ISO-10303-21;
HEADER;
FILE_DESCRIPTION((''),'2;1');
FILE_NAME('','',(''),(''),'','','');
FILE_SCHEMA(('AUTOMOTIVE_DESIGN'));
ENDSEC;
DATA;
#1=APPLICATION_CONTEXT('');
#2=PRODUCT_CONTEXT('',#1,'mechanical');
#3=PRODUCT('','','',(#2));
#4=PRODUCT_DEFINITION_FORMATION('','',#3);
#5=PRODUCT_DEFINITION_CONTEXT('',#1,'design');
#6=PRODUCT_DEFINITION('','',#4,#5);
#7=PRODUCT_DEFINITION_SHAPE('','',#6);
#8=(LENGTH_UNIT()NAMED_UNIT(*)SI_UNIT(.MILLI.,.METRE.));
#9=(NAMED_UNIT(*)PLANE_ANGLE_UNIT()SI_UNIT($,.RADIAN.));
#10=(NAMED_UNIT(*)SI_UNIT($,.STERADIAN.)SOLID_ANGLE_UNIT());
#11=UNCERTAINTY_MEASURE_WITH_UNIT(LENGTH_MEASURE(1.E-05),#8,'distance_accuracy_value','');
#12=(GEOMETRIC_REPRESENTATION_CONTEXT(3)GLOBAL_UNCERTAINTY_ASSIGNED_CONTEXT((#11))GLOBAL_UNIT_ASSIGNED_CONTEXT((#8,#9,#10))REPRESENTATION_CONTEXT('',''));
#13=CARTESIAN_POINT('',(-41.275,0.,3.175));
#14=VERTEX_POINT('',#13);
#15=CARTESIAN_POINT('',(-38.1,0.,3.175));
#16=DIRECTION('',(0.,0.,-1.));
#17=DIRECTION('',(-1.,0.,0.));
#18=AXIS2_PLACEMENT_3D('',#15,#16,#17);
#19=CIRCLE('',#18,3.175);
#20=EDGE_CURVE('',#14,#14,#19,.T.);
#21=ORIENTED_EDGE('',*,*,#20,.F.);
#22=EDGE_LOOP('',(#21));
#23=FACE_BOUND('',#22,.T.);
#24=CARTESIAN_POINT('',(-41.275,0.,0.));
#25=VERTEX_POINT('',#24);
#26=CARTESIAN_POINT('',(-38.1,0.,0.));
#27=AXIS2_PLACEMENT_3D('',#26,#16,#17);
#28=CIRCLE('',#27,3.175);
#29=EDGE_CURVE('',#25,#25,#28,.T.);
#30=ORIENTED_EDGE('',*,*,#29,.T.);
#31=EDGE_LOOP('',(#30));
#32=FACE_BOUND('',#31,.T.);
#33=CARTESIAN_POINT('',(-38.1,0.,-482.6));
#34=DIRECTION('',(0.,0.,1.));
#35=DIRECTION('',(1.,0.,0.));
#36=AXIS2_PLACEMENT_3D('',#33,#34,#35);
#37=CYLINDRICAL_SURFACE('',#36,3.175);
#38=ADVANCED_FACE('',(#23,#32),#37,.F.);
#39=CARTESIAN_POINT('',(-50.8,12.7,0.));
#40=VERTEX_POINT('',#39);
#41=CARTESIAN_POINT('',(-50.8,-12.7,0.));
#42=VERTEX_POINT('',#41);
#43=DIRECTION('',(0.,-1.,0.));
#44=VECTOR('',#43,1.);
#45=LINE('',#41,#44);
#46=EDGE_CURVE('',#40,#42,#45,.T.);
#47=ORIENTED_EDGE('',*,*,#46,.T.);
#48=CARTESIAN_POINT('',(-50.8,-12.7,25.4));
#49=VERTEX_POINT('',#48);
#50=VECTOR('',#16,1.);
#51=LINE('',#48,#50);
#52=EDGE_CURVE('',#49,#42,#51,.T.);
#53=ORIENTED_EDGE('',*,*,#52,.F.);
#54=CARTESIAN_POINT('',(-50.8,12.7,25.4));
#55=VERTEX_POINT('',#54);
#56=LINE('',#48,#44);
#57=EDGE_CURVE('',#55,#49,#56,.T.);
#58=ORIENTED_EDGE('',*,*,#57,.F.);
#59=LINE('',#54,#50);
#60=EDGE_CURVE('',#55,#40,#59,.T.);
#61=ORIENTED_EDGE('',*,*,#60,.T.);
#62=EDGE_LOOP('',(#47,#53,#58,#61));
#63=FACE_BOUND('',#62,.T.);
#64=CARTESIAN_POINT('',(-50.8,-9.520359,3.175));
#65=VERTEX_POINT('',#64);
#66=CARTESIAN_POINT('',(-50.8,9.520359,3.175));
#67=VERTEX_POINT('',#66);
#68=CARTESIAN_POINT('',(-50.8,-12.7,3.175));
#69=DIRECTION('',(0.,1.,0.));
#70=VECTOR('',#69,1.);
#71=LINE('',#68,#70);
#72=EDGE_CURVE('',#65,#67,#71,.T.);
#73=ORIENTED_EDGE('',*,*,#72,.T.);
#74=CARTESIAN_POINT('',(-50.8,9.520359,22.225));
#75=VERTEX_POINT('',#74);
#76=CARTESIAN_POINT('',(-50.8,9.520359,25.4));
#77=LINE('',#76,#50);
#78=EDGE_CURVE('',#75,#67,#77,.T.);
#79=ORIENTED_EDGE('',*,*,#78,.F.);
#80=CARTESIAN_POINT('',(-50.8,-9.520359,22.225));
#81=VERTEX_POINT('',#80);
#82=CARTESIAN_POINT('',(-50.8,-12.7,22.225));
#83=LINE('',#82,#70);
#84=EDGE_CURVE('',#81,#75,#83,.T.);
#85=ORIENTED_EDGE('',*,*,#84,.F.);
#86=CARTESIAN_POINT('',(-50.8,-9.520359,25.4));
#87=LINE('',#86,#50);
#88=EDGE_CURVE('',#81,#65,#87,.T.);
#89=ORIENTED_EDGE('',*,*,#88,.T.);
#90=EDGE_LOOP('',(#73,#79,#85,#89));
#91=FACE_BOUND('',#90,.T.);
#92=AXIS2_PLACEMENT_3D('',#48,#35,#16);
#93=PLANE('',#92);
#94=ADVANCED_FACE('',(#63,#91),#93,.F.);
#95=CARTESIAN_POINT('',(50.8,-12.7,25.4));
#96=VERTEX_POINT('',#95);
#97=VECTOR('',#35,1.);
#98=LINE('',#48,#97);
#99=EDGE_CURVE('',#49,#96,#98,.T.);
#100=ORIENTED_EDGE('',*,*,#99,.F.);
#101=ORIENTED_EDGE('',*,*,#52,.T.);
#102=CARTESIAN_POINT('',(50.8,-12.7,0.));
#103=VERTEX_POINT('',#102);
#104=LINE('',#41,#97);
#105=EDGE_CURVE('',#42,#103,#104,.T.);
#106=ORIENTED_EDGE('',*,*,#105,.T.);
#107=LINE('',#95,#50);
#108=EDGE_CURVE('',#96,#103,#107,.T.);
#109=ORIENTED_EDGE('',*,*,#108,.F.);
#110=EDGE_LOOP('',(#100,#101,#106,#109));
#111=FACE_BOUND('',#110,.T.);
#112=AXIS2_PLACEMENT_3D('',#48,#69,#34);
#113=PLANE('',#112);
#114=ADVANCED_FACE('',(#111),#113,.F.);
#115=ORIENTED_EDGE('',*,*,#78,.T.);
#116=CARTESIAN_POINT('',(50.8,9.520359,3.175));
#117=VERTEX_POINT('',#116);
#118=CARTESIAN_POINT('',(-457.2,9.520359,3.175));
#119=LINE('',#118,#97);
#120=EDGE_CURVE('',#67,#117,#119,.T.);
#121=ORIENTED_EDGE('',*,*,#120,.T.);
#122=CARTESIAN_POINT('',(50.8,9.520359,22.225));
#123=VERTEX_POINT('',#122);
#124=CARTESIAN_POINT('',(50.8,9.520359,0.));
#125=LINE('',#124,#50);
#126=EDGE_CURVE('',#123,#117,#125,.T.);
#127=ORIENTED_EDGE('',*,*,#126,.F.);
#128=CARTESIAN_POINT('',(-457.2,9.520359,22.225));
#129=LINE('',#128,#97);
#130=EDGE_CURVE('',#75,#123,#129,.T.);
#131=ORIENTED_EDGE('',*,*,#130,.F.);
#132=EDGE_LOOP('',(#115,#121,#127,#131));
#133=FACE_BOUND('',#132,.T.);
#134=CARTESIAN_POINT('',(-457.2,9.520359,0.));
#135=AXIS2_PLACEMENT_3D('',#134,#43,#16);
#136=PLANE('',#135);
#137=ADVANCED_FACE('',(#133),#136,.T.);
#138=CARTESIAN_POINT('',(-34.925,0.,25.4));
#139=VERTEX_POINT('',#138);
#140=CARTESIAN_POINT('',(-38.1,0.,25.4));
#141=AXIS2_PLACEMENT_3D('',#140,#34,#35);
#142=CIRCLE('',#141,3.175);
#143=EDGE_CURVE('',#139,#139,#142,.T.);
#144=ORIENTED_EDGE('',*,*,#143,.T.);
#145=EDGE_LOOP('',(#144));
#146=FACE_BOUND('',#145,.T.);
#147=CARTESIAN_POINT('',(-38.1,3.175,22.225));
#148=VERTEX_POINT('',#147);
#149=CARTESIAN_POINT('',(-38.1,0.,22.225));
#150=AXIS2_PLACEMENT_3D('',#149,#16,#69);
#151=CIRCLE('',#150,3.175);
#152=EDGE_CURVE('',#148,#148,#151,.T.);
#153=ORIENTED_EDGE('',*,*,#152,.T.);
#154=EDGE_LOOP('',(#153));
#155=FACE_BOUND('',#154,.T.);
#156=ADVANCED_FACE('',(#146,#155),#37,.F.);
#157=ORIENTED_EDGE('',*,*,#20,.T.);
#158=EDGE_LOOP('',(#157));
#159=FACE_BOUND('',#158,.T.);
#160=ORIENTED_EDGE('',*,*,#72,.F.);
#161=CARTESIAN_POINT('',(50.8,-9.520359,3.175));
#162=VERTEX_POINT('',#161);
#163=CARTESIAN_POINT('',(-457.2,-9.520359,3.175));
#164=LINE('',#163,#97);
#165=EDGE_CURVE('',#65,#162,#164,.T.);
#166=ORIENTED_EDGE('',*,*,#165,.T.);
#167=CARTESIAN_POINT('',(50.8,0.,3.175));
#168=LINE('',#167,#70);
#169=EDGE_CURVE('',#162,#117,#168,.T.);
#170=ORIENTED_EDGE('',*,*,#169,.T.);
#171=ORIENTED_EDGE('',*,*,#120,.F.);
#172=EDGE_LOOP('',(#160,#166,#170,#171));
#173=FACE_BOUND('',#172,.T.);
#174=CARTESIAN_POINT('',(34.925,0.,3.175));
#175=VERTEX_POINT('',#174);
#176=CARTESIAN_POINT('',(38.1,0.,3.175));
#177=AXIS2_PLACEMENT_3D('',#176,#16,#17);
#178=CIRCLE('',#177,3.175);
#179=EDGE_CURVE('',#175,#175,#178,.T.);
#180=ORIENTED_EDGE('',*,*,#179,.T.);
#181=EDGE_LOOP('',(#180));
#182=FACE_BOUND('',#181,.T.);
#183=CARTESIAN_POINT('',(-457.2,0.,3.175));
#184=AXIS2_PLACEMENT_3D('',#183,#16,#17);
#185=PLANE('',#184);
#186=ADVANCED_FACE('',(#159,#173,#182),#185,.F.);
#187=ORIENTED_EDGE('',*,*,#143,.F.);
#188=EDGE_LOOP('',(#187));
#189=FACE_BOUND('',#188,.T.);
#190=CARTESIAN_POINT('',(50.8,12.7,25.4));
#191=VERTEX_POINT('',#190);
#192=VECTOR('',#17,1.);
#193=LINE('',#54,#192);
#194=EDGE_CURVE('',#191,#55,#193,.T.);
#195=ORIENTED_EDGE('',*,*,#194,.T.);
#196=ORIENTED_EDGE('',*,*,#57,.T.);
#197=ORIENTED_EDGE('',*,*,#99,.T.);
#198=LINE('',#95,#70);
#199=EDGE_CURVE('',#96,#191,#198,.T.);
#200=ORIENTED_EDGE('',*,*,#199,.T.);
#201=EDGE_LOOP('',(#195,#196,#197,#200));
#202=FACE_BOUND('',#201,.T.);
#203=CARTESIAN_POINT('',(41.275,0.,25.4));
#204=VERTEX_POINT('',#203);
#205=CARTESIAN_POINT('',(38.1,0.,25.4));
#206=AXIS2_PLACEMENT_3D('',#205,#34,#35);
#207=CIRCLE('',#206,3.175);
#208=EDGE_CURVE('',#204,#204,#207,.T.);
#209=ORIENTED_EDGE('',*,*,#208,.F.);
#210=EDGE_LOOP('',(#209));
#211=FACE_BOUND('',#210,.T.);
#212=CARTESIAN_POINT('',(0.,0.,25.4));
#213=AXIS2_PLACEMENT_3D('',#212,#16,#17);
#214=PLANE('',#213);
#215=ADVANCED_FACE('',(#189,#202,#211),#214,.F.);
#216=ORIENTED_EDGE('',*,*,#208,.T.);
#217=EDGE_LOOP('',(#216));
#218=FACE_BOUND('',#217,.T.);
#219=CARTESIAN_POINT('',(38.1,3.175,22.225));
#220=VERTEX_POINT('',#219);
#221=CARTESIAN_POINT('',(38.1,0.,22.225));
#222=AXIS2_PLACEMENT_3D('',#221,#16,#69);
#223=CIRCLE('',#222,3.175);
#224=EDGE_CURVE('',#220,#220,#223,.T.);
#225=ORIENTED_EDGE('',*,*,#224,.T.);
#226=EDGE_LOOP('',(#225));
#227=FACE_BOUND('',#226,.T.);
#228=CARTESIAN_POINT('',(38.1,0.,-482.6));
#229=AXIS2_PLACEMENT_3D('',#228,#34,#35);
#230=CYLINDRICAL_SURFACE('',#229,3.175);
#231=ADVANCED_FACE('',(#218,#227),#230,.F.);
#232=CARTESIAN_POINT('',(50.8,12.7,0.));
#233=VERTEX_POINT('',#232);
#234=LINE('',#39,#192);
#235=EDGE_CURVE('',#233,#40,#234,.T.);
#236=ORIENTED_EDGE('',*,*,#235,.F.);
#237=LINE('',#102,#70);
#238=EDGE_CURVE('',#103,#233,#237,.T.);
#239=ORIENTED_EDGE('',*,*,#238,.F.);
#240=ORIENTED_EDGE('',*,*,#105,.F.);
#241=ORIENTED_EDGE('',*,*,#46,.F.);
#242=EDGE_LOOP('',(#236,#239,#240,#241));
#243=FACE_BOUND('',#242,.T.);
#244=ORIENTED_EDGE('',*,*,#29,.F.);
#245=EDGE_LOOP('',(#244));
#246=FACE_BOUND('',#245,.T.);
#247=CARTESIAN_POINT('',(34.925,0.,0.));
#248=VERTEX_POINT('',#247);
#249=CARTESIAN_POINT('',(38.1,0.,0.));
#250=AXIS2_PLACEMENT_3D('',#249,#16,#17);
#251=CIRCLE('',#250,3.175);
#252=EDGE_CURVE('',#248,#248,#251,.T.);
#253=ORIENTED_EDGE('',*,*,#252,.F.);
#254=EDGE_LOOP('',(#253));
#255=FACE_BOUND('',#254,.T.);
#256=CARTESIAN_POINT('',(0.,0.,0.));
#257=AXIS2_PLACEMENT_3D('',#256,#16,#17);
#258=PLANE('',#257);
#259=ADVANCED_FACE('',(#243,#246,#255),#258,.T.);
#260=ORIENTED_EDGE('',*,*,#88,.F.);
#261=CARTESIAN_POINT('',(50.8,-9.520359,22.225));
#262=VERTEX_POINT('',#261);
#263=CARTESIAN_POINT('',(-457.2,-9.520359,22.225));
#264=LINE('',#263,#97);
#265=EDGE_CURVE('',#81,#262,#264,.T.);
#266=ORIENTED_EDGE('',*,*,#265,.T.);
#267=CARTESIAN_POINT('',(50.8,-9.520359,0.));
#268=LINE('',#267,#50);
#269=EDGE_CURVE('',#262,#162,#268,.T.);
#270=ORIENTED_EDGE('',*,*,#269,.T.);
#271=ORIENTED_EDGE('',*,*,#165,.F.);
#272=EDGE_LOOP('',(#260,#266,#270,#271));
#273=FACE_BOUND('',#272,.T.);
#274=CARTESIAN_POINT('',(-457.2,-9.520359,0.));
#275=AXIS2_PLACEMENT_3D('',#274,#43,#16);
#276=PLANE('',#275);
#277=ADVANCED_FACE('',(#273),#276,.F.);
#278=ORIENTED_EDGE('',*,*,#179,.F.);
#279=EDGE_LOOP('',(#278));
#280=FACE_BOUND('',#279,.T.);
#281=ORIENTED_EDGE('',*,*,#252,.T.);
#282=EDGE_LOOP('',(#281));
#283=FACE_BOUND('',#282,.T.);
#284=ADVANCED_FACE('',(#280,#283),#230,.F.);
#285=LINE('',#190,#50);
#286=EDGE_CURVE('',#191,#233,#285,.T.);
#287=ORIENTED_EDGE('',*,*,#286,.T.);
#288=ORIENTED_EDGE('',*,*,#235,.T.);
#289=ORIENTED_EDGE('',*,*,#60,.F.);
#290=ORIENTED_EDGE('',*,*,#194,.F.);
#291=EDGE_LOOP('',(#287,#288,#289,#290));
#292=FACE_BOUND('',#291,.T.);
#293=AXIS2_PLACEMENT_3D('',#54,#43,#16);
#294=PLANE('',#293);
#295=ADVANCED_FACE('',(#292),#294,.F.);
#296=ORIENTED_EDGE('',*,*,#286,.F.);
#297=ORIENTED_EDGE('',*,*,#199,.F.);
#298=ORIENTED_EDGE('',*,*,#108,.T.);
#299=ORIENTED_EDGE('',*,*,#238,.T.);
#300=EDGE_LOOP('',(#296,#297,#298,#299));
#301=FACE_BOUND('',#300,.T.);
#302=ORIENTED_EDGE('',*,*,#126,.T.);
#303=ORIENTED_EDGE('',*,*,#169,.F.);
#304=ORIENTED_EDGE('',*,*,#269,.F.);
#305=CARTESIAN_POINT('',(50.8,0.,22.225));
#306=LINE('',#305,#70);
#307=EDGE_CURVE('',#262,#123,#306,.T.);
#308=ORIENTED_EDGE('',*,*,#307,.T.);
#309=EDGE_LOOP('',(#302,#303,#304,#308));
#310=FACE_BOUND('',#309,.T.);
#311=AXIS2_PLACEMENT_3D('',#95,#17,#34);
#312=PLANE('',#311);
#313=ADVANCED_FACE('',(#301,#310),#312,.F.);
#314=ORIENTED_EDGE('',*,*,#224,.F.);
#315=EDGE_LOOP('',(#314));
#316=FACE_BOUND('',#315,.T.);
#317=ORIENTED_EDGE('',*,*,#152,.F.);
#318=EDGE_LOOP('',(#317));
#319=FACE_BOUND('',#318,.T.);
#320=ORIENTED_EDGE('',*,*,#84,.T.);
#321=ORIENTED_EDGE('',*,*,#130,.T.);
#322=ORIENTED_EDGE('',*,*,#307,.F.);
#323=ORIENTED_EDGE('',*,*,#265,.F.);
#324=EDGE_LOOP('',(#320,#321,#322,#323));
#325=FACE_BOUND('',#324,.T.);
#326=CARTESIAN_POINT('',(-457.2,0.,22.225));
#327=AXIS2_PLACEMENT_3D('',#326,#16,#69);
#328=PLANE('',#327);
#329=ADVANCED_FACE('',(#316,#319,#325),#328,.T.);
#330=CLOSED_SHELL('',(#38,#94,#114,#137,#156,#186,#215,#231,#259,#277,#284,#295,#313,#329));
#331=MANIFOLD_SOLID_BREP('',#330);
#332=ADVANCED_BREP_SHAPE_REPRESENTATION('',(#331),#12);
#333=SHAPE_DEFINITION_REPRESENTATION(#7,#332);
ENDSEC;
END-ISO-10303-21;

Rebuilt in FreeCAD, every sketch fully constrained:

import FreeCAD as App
import Part
import Sketcher
from FreeCAD import Vector
Q = App.Units.Quantity


def add_polygon(sketch, points):
    """Adds a closed chain of lines whose ends are joined by coincident constraints."""
    first, n = sketch.GeometryCount, len(points)
    for a, b in zip(points, points[1:] + points[:1]):
        sketch.addGeometry(Part.LineSegment(App.Vector(*a, 0), App.Vector(*b, 0)), False)
    for i in range(n):
        sketch.addConstraint(Sketcher.Constraint("Coincident", first + i, 2, first + (i + 1) % n, 1))

doc = App.newDocument("Part")
body = doc.addObject("PartDesign::Body", "Body")

# Sketch on XY plane
sketch1 = doc.addObject("Sketcher::SketchObject", "Sketch")
body.addObject(sketch1)
sketch1.AttachmentSupport = (doc.XY_Plane, [""])
sketch1.MapMode = "FlatFace"
add_polygon(sketch1, [(-51, 13), (-51, -13), (51, -13), (51, 13)])  # lines 0-3
sketch1.addConstraint(Sketcher.Constraint("Vertical", 0))
sketch1.addConstraint(Sketcher.Constraint("Horizontal", 1))
sketch1.addConstraint(Sketcher.Constraint("Vertical", 2))
sketch1.addConstraint(Sketcher.Constraint("Horizontal", 3))
sketch1.addConstraint(Sketcher.Constraint("Symmetric", 0, 2, 2, 2, -1, 1))
sketch1.addConstraint(Sketcher.Constraint("DistanceX", 1, 1, 1, 2, Q("4 in")))
sketch1.addConstraint(Sketcher.Constraint("DistanceY", 0, 2, 0, 1, Q("1 in")))
pad1 = doc.addObject("PartDesign::Pad", "Pad")
body.addObject(pad1)
pad1.Profile = sketch1
pad1.Length = Q("1 in")

# Sketch on YZ plane
sketch2 = doc.addObject("Sketcher::SketchObject", "Sketch001")
body.addObject(sketch2)
sketch2.AttachmentSupport = (doc.YZ_Plane, [""])
sketch2.MapMode = "FlatFace"
sketch2.AttachmentOffset = App.Placement(Vector(0, 0, 2 * 25.4), App.Rotation())
add_polygon(sketch2, [(10, 22), (-10, 22), (-10, 3), (10, 3)])  # lines 0-3
sketch2.addConstraint(Sketcher.Constraint("Horizontal", 0))
sketch2.addConstraint(Sketcher.Constraint("Vertical", 1))
sketch2.addConstraint(Sketcher.Constraint("Horizontal", 2))
sketch2.addConstraint(Sketcher.Constraint("Vertical", 3))
sketch2.addConstraint(Sketcher.Constraint("DistanceY", 1, 2, 1, 1, Q("0.75 in")))
sketch2.addConstraint(Sketcher.Constraint("DistanceY", -1, 1, 0, 2, Q("0.875 in")))
sketch2.addConstraint(Sketcher.Constraint("DistanceX", 0, 2, 0, 1, Q("19.040717 mm")))
sketch2.addConstraint(Sketcher.Constraint("DistanceX", 0, 2, -1, 1, Q("9.520359 mm")))
pocket1 = doc.addObject("PartDesign::Pocket", "Pocket")
body.addObject(pocket1)
pocket1.Profile = sketch2
pocket1.Length = Q("20 in")

# Sketch on XY plane
sketch3 = doc.addObject("Sketcher::SketchObject", "Sketch002")
body.addObject(sketch3)
sketch3.AttachmentSupport = (doc.XY_Plane, [""])
sketch3.MapMode = "FlatFace"
sketch3.AttachmentOffset = App.Placement(Vector(0, 0, 1 * 25.4), App.Rotation())
sketch3.addGeometry(Part.Circle(Vector(-38.1, 0, 0), Vector(0, 0, 1), 3.2), False)
sketch3.addGeometry(Part.Circle(Vector(38.1, 0, 0), Vector(0, 0, 1), 3.2), False)
sketch3.addConstraint(Sketcher.Constraint("Equal", 0, 1))
sketch3.addConstraint(Sketcher.Constraint("Symmetric", 0, 3, 1, 3, -1, 1))
sketch3.addConstraint(Sketcher.Constraint("PointOnObject", 0, 3, -1))
sketch3.addConstraint(Sketcher.Constraint("Diameter", 0, Q("0.25 in")))
sketch3.addConstraint(Sketcher.Constraint("DistanceX", 0, 3, 1, 3, Q("3 in")))
pocket2 = doc.addObject("PartDesign::Pocket", "Pocket001")
body.addObject(pocket2)
pocket2.Profile = sketch3
pocket2.Length = Q("20 in")

doc.recompute()
